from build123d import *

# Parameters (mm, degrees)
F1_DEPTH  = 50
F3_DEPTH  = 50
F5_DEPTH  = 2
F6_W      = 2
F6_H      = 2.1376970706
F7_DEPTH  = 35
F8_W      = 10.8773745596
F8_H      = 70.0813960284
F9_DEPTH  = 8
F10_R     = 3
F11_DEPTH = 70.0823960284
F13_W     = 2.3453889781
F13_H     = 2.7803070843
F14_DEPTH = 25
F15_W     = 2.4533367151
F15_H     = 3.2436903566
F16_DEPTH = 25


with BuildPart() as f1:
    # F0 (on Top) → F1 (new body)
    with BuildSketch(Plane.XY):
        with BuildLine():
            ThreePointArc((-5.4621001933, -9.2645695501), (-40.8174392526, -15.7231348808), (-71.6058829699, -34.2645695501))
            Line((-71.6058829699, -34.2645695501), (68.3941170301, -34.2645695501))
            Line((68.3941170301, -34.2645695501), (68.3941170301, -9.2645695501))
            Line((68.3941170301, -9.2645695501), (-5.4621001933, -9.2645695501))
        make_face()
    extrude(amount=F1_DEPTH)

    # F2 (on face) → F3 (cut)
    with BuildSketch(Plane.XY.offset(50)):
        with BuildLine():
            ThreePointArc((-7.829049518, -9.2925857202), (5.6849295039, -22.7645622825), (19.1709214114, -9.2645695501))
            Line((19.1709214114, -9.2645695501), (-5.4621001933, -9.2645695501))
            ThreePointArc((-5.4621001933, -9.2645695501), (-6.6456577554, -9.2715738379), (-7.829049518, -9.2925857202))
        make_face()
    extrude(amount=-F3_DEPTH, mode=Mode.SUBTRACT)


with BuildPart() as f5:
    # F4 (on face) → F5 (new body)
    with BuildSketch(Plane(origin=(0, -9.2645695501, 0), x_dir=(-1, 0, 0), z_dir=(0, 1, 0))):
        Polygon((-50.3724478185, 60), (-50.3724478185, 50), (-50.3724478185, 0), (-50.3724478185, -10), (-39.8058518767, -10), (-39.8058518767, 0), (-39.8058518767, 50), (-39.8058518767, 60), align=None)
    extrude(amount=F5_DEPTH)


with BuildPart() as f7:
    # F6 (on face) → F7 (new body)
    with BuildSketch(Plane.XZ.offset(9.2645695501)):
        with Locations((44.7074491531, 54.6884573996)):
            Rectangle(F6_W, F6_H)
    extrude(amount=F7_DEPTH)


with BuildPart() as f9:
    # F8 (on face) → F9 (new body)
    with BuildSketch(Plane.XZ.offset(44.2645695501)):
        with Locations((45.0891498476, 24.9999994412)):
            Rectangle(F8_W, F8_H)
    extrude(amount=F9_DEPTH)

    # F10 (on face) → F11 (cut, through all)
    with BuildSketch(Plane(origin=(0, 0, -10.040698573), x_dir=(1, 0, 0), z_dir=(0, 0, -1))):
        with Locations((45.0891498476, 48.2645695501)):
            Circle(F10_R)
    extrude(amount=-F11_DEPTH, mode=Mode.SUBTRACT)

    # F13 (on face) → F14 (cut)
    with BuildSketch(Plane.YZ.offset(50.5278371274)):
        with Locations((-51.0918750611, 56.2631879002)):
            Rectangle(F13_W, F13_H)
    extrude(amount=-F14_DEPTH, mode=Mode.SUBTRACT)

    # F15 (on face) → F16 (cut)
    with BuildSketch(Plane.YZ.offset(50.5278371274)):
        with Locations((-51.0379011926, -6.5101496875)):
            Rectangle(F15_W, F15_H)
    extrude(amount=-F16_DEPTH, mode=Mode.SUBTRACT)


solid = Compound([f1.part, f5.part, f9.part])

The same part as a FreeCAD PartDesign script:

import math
import FreeCAD as App
import Part
import Sketcher
from FreeCAD import Vector

doc = App.newDocument("Part")
body = doc.addObject("PartDesign::Body", "Body")

# Sketch on XY plane
sketch1 = doc.addObject("Sketcher::SketchObject", "Sketch")
body.addObject(sketch1)
sketch1.AttachmentSupport = (doc.XY_Plane, [""])
sketch1.MapMode = "FlatFace"
sketch1.addGeometry([
    Part.ArcOfCircle(Part.Circle(Vector(-5, -109, 0), Vector(0, 0, 1), 100), math.radians(90), math.radians(131)),
    Part.LineSegment(Vector(-72, -34, 0), Vector(68, -34, 0)),
    Part.LineSegment(Vector(68, -34, 0), Vector(68, -9, 0)),
    Part.LineSegment(Vector(68, -9, 0), Vector(-5, -9, 0)),
], False)
sketch1.addConstraint([
    Sketcher.Constraint("Coincident", 0, 2, 1, 1),
    Sketcher.Constraint("Coincident", 1, 2, 2, 1),
    Sketcher.Constraint("Coincident", 2, 2, 3, 1),
    Sketcher.Constraint("Tangent", 3, 2, 0, 1),
    Sketcher.Constraint("Horizontal", 1),
    Sketcher.Constraint("Vertical", 2),
    Sketcher.Constraint("Horizontal", 3),
    Sketcher.Constraint("Radius", 0, 100.0),
    Sketcher.Constraint("DistanceX", 1, 1, 1, 2, 140.0),
    Sketcher.Constraint("DistanceY", 2, 1, 2, 2, 25.0),
    Sketcher.Constraint("DistanceX", 0, 3, -1, 1, 5.4621),
    Sketcher.Constraint("DistanceY", 0, 3, -1, 1, 109.26457),
])
pad1 = doc.addObject("PartDesign::Pad", "Pad")
body.addObject(pad1)
pad1.Profile = sketch1
pad1.Length = 50

# Sketch on XY plane
sketch2 = doc.addObject("Sketcher::SketchObject", "Sketch001")
body.addObject(sketch2)
sketch2.AttachmentSupport = (doc.XY_Plane, [""])
sketch2.MapMode = "FlatFace"
sketch2.AttachmentOffset = App.Placement(Vector(0, 0, 50), App.Rotation())
sketch2.addGeometry([
    Part.ArcOfCircle(Part.Circle(Vector(5.7, -9.3, 0), Vector(0, 0, 1), 13.5), math.radians(-180), math.radians(0)),
    Part.LineSegment(Vector(19.2, -9.3, 0), Vector(-5.5, -9.3, 0)),
    Part.ArcOfCircle(Part.Circle(Vector(-5.5, -109.3, 0), Vector(0, 0, 1), 100), math.radians(90), math.radians(91.36)),
], False)
sketch2.addConstraint([
    Sketcher.Constraint("Coincident", 0, 2, 1, 1),
    Sketcher.Constraint("Tangent", 1, 2, 2, 1),
    Sketcher.Constraint("Coincident", 2, 2, 0, 1),
    Sketcher.Constraint("Horizontal", 1),
    Sketcher.Constraint("Radius", 2, 99.999999),
    Sketcher.Constraint("Radius", 0, 13.5),
    Sketcher.Constraint("DistanceY", 2, 3, 0, 3, 99.999999),
    Sketcher.Constraint("DistanceX", 1, 2, 1, 1, 24.633022),
    Sketcher.Constraint("DistanceX", 2, 3, -1, 1, 5.4621),
    Sketcher.Constraint("DistanceY", 0, 3, -1, 1, 9.26457),
])
pocket1 = doc.addObject("PartDesign::Pocket", "Pocket")
body.addObject(pocket1)
pocket1.Profile = sketch2
pocket1.Length = 50
body2 = doc.addObject("PartDesign::Body", "Body001")

# Sketch on XZ plane
sketch3 = doc.addObject("Sketcher::SketchObject", "Sketch002")
body2.addObject(sketch3)
sketch3.AttachmentSupport = (doc.getObject("XZ_Plane001"), [""])
sketch3.MapMode = "FlatFace"
sketch3.AttachmentOffset = App.Placement(Vector(0, 0, 9.26457), App.Rotation())
sketch3.addGeometry([
    Part.LineSegment(Vector(50, 60, 0), Vector(50, -10, 0)),
    Part.LineSegment(Vector(50, -10, 0), Vector(40, -10, 0)),
    Part.LineSegment(Vector(40, -10, 0), Vector(40, 60, 0)),
    Part.LineSegment(Vector(40, 60, 0), Vector(50, 60, 0)),
], False)
sketch3.addConstraint([
    Sketcher.Constraint("Coincident", 0, 2, 1, 1),
    Sketcher.Constraint("Coincident", 1, 2, 2, 1),
    Sketcher.Constraint("Coincident", 2, 2, 3, 1),
    Sketcher.Constraint("Coincident", 3, 2, 0, 1),
    Sketcher.Constraint("Vertical", 0),
    Sketcher.Constraint("Horizontal", 1),
    Sketcher.Constraint("Vertical", 2),
    Sketcher.Constraint("Horizontal", 3),
    Sketcher.Constraint("DistanceY", 0, 2, 0, 1, 70.0),
    Sketcher.Constraint("DistanceY", 0, 2, -1, 1, 10.0),
    Sketcher.Constraint("DistanceX", 1, 2, 1, 1, 10.566596),
    Sketcher.Constraint("DistanceX", -1, 1, 1, 2, 39.805852),
])
pad2 = doc.addObject("PartDesign::Pad", "Pad001")
body2.addObject(pad2)
pad2.Profile = sketch3
pad2.Length = 2
pad2.Reversed = True
body3 = doc.addObject("PartDesign::Body", "Body002")

# Sketch on XZ plane
sketch4 = doc.addObject("Sketcher::SketchObject", "Sketch003")
body3.addObject(sketch4)
sketch4.AttachmentSupport = (doc.getObject("XZ_Plane002"), [""])
sketch4.MapMode = "FlatFace"
sketch4.AttachmentOffset = App.Placement(Vector(0, 0, 9.26457), App.Rotation())
sketch4.addGeometry([
    Part.LineSegment(Vector(43.7, 55.8, 0), Vector(43.7, 53.6, 0)),
    Part.LineSegment(Vector(43.7, 53.6, 0), Vector(45.7, 53.6, 0)),
    Part.LineSegment(Vector(45.7, 53.6, 0), Vector(45.7, 55.8, 0)),
    Part.LineSegment(Vector(45.7, 55.8, 0), Vector(43.7, 55.8, 0)),
], False)
sketch4.addConstraint([
    Sketcher.Constraint("Coincident", 0, 2, 1, 1),
    Sketcher.Constraint("Coincident", 1, 2, 2, 1),
    Sketcher.Constraint("Coincident", 2, 2, 3, 1),
    Sketcher.Constraint("Coincident", 3, 2, 0, 1),
    Sketcher.Constraint("Vertical", 0),
    Sketcher.Constraint("Horizontal", 1),
    Sketcher.Constraint("Vertical", 2),
    Sketcher.Constraint("Horizontal", 3),
    Sketcher.Constraint("DistanceX", 1, 1, 1, 2, 2.0),
    Sketcher.Constraint("DistanceY", 0, 2, 0, 1, 2.137697),
    Sketcher.Constraint("DistanceX", -1, 1, 0, 2, 43.707449),
    Sketcher.Constraint("DistanceY", -1, 1, 0, 2, 53.619609),
])
pad3 = doc.addObject("PartDesign::Pad", "Pad002")
body3.addObject(pad3)
pad3.Profile = sketch4
pad3.Length = 35
body4 = doc.addObject("PartDesign::Body", "Body003")

# Sketch on XZ plane
sketch5 = doc.addObject("Sketcher::SketchObject", "Sketch004")
body4.addObject(sketch5)
sketch5.AttachmentSupport = (doc.getObject("XZ_Plane003"), [""])
sketch5.MapMode = "FlatFace"
sketch5.AttachmentOffset = App.Placement(Vector(0, 0, 44.26457), App.Rotation())
sketch5.addGeometry([
    Part.LineSegment(Vector(40, 60, 0), Vector(40, -10, 0)),
    Part.LineSegment(Vector(40, -10, 0), Vector(51, -10, 0)),
    Part.LineSegment(Vector(51, -10, 0), Vector(51, 60, 0)),
    Part.LineSegment(Vector(51, 60, 0), Vector(40, 60, 0)),
], False)
sketch5.addConstraint([
    Sketcher.Constraint("Coincident", 0, 2, 1, 1),
    Sketcher.Constraint("Coincident", 1, 2, 2, 1),
    Sketcher.Constraint("Coincident", 2, 2, 3, 1),
    Sketcher.Constraint("Coincident", 3, 2, 0, 1),
    Sketcher.Constraint("Vertical", 0),
    Sketcher.Constraint("Horizontal", 1),
    Sketcher.Constraint("Vertical", 2),
    Sketcher.Constraint("Horizontal", 3),
    Sketcher.Constraint("DistanceY", 0, 2, -1, 1, 10.040699),
    Sketcher.Constraint("DistanceX", 1, 1, 1, 2, 10.877375),
    Sketcher.Constraint("DistanceY", 0, 2, 0, 1, 70.081396),
    Sketcher.Constraint("DistanceX", -1, 1, 0, 2, 39.650463),
])
pad4 = doc.addObject("PartDesign::Pad", "Pad003")
body4.addObject(pad4)
pad4.Profile = sketch5
pad4.Length = 8

# Sketch on XY plane
sketch6 = doc.addObject("Sketcher::SketchObject", "Sketch005")
body4.addObject(sketch6)
sketch6.AttachmentSupport = (doc.getObject("XY_Plane003"), [""])
sketch6.MapMode = "FlatFace"
sketch6.AttachmentOffset = App.Placement(Vector(0, 0, -10.040699), App.Rotation())
sketch6.addGeometry(Part.Circle(Vector(45.1, -48.3, 0), Vector(0, 0, 1), 3), False)
sketch6.addConstraint([
    Sketcher.Constraint("Diameter", 0, 6.0),
    Sketcher.Constraint("DistanceX", -1, 1, 0, 3, 45.08915),
    Sketcher.Constraint("DistanceY", 0, 3, -1, 1, 48.26457),
])
pocket2 = doc.addObject("PartDesign::Pocket", "Pocket001")
body4.addObject(pocket2)
pocket2.Profile = sketch6
pocket2.Type = "ThroughAll"
pocket2.Reversed = True

# Sketch on YZ plane
sketch7 = doc.addObject("Sketcher::SketchObject", "Sketch006")
body4.addObject(sketch7)
sketch7.AttachmentSupport = (doc.getObject("YZ_Plane003"), [""])
sketch7.MapMode = "FlatFace"
sketch7.AttachmentOffset = App.Placement(Vector(0, 0, 50.527837), App.Rotation())
sketch7.addGeometry([
    Part.LineSegment(Vector(-52.3, 57.7, 0), Vector(-52.3, 54.9, 0)),
    Part.LineSegment(Vector(-52.3, 54.9, 0), Vector(-49.9, 54.9, 0)),
    Part.LineSegment(Vector(-49.9, 54.9, 0), Vector(-49.9, 57.7, 0)),
    Part.LineSegment(Vector(-49.9, 57.7, 0), Vector(-52.3, 57.7, 0)),
], False)
sketch7.addConstraint([
    Sketcher.Constraint("Coincident", 0, 2, 1, 1),
    Sketcher.Constraint("Coincident", 1, 2, 2, 1),
    Sketcher.Constraint("Coincident", 2, 2, 3, 1),
    Sketcher.Constraint("Coincident", 3, 2, 0, 1),
    Sketcher.Constraint("Vertical", 0),
    Sketcher.Constraint("Horizontal", 1),
    Sketcher.Constraint("Vertical", 2),
    Sketcher.Constraint("Horizontal", 3),
    Sketcher.Constraint("DistanceX", 1, 1, 1, 2, 2.345389),
    Sketcher.Constraint("DistanceY", 0, 2, 0, 1, 2.780307),
    Sketcher.Constraint("DistanceX", 0, 2, -1, 1, 52.26457),
    Sketcher.Constraint("DistanceY", -1, 1, 2, 2, 57.653341),
])
pocket3 = doc.addObject("PartDesign::Pocket", "Pocket002")
body4.addObject(pocket3)
pocket3.Profile = sketch7
pocket3.Length = 25

# Sketch on YZ plane
sketch8 = doc.addObject("Sketcher::SketchObject", "Sketch007")
body4.addObject(sketch8)
sketch8.AttachmentSupport = (doc.getObject("YZ_Plane003"), [""])
sketch8.MapMode = "FlatFace"
sketch8.AttachmentOffset = App.Placement(Vector(0, 0, 50.527837), App.Rotation())
sketch8.addGeometry([
    Part.LineSegment(Vector(-52.3, -4.9, 0), Vector(-52.3, -8.1, 0)),
    Part.LineSegment(Vector(-52.3, -8.1, 0), Vector(-49.8, -8.1, 0)),
    Part.LineSegment(Vector(-49.8, -8.1, 0), Vector(-49.8, -4.9, 0)),
    Part.LineSegment(Vector(-49.8, -4.9, 0), Vector(-52.3, -4.9, 0)),
], False)
sketch8.addConstraint([
    Sketcher.Constraint("Coincident", 0, 2, 1, 1),
    Sketcher.Constraint("Coincident", 1, 2, 2, 1),
    Sketcher.Constraint("Coincident", 2, 2, 3, 1),
    Sketcher.Constraint("Coincident", 3, 2, 0, 1),
    Sketcher.Constraint("Vertical", 0),
    Sketcher.Constraint("Horizontal", 1),
    Sketcher.Constraint("Vertical", 2),
    Sketcher.Constraint("Horizontal", 3),
    Sketcher.Constraint("DistanceY", 0, 2, 0, 1, 3.24369),
    Sketcher.Constraint("DistanceX", 1, 1, 1, 2, 2.453337),
    Sketcher.Constraint("DistanceX", 0, 2, -1, 1, 52.26457),
    Sketcher.Constraint("DistanceY", 0, 2, -1, 1, 8.131995),
])
pocket4 = doc.addObject("PartDesign::Pocket", "Pocket003")
body4.addObject(pocket4)
pocket4.Profile = sketch8
pocket4.Length = 25
body3.Visibility = False

doc.recompute()
